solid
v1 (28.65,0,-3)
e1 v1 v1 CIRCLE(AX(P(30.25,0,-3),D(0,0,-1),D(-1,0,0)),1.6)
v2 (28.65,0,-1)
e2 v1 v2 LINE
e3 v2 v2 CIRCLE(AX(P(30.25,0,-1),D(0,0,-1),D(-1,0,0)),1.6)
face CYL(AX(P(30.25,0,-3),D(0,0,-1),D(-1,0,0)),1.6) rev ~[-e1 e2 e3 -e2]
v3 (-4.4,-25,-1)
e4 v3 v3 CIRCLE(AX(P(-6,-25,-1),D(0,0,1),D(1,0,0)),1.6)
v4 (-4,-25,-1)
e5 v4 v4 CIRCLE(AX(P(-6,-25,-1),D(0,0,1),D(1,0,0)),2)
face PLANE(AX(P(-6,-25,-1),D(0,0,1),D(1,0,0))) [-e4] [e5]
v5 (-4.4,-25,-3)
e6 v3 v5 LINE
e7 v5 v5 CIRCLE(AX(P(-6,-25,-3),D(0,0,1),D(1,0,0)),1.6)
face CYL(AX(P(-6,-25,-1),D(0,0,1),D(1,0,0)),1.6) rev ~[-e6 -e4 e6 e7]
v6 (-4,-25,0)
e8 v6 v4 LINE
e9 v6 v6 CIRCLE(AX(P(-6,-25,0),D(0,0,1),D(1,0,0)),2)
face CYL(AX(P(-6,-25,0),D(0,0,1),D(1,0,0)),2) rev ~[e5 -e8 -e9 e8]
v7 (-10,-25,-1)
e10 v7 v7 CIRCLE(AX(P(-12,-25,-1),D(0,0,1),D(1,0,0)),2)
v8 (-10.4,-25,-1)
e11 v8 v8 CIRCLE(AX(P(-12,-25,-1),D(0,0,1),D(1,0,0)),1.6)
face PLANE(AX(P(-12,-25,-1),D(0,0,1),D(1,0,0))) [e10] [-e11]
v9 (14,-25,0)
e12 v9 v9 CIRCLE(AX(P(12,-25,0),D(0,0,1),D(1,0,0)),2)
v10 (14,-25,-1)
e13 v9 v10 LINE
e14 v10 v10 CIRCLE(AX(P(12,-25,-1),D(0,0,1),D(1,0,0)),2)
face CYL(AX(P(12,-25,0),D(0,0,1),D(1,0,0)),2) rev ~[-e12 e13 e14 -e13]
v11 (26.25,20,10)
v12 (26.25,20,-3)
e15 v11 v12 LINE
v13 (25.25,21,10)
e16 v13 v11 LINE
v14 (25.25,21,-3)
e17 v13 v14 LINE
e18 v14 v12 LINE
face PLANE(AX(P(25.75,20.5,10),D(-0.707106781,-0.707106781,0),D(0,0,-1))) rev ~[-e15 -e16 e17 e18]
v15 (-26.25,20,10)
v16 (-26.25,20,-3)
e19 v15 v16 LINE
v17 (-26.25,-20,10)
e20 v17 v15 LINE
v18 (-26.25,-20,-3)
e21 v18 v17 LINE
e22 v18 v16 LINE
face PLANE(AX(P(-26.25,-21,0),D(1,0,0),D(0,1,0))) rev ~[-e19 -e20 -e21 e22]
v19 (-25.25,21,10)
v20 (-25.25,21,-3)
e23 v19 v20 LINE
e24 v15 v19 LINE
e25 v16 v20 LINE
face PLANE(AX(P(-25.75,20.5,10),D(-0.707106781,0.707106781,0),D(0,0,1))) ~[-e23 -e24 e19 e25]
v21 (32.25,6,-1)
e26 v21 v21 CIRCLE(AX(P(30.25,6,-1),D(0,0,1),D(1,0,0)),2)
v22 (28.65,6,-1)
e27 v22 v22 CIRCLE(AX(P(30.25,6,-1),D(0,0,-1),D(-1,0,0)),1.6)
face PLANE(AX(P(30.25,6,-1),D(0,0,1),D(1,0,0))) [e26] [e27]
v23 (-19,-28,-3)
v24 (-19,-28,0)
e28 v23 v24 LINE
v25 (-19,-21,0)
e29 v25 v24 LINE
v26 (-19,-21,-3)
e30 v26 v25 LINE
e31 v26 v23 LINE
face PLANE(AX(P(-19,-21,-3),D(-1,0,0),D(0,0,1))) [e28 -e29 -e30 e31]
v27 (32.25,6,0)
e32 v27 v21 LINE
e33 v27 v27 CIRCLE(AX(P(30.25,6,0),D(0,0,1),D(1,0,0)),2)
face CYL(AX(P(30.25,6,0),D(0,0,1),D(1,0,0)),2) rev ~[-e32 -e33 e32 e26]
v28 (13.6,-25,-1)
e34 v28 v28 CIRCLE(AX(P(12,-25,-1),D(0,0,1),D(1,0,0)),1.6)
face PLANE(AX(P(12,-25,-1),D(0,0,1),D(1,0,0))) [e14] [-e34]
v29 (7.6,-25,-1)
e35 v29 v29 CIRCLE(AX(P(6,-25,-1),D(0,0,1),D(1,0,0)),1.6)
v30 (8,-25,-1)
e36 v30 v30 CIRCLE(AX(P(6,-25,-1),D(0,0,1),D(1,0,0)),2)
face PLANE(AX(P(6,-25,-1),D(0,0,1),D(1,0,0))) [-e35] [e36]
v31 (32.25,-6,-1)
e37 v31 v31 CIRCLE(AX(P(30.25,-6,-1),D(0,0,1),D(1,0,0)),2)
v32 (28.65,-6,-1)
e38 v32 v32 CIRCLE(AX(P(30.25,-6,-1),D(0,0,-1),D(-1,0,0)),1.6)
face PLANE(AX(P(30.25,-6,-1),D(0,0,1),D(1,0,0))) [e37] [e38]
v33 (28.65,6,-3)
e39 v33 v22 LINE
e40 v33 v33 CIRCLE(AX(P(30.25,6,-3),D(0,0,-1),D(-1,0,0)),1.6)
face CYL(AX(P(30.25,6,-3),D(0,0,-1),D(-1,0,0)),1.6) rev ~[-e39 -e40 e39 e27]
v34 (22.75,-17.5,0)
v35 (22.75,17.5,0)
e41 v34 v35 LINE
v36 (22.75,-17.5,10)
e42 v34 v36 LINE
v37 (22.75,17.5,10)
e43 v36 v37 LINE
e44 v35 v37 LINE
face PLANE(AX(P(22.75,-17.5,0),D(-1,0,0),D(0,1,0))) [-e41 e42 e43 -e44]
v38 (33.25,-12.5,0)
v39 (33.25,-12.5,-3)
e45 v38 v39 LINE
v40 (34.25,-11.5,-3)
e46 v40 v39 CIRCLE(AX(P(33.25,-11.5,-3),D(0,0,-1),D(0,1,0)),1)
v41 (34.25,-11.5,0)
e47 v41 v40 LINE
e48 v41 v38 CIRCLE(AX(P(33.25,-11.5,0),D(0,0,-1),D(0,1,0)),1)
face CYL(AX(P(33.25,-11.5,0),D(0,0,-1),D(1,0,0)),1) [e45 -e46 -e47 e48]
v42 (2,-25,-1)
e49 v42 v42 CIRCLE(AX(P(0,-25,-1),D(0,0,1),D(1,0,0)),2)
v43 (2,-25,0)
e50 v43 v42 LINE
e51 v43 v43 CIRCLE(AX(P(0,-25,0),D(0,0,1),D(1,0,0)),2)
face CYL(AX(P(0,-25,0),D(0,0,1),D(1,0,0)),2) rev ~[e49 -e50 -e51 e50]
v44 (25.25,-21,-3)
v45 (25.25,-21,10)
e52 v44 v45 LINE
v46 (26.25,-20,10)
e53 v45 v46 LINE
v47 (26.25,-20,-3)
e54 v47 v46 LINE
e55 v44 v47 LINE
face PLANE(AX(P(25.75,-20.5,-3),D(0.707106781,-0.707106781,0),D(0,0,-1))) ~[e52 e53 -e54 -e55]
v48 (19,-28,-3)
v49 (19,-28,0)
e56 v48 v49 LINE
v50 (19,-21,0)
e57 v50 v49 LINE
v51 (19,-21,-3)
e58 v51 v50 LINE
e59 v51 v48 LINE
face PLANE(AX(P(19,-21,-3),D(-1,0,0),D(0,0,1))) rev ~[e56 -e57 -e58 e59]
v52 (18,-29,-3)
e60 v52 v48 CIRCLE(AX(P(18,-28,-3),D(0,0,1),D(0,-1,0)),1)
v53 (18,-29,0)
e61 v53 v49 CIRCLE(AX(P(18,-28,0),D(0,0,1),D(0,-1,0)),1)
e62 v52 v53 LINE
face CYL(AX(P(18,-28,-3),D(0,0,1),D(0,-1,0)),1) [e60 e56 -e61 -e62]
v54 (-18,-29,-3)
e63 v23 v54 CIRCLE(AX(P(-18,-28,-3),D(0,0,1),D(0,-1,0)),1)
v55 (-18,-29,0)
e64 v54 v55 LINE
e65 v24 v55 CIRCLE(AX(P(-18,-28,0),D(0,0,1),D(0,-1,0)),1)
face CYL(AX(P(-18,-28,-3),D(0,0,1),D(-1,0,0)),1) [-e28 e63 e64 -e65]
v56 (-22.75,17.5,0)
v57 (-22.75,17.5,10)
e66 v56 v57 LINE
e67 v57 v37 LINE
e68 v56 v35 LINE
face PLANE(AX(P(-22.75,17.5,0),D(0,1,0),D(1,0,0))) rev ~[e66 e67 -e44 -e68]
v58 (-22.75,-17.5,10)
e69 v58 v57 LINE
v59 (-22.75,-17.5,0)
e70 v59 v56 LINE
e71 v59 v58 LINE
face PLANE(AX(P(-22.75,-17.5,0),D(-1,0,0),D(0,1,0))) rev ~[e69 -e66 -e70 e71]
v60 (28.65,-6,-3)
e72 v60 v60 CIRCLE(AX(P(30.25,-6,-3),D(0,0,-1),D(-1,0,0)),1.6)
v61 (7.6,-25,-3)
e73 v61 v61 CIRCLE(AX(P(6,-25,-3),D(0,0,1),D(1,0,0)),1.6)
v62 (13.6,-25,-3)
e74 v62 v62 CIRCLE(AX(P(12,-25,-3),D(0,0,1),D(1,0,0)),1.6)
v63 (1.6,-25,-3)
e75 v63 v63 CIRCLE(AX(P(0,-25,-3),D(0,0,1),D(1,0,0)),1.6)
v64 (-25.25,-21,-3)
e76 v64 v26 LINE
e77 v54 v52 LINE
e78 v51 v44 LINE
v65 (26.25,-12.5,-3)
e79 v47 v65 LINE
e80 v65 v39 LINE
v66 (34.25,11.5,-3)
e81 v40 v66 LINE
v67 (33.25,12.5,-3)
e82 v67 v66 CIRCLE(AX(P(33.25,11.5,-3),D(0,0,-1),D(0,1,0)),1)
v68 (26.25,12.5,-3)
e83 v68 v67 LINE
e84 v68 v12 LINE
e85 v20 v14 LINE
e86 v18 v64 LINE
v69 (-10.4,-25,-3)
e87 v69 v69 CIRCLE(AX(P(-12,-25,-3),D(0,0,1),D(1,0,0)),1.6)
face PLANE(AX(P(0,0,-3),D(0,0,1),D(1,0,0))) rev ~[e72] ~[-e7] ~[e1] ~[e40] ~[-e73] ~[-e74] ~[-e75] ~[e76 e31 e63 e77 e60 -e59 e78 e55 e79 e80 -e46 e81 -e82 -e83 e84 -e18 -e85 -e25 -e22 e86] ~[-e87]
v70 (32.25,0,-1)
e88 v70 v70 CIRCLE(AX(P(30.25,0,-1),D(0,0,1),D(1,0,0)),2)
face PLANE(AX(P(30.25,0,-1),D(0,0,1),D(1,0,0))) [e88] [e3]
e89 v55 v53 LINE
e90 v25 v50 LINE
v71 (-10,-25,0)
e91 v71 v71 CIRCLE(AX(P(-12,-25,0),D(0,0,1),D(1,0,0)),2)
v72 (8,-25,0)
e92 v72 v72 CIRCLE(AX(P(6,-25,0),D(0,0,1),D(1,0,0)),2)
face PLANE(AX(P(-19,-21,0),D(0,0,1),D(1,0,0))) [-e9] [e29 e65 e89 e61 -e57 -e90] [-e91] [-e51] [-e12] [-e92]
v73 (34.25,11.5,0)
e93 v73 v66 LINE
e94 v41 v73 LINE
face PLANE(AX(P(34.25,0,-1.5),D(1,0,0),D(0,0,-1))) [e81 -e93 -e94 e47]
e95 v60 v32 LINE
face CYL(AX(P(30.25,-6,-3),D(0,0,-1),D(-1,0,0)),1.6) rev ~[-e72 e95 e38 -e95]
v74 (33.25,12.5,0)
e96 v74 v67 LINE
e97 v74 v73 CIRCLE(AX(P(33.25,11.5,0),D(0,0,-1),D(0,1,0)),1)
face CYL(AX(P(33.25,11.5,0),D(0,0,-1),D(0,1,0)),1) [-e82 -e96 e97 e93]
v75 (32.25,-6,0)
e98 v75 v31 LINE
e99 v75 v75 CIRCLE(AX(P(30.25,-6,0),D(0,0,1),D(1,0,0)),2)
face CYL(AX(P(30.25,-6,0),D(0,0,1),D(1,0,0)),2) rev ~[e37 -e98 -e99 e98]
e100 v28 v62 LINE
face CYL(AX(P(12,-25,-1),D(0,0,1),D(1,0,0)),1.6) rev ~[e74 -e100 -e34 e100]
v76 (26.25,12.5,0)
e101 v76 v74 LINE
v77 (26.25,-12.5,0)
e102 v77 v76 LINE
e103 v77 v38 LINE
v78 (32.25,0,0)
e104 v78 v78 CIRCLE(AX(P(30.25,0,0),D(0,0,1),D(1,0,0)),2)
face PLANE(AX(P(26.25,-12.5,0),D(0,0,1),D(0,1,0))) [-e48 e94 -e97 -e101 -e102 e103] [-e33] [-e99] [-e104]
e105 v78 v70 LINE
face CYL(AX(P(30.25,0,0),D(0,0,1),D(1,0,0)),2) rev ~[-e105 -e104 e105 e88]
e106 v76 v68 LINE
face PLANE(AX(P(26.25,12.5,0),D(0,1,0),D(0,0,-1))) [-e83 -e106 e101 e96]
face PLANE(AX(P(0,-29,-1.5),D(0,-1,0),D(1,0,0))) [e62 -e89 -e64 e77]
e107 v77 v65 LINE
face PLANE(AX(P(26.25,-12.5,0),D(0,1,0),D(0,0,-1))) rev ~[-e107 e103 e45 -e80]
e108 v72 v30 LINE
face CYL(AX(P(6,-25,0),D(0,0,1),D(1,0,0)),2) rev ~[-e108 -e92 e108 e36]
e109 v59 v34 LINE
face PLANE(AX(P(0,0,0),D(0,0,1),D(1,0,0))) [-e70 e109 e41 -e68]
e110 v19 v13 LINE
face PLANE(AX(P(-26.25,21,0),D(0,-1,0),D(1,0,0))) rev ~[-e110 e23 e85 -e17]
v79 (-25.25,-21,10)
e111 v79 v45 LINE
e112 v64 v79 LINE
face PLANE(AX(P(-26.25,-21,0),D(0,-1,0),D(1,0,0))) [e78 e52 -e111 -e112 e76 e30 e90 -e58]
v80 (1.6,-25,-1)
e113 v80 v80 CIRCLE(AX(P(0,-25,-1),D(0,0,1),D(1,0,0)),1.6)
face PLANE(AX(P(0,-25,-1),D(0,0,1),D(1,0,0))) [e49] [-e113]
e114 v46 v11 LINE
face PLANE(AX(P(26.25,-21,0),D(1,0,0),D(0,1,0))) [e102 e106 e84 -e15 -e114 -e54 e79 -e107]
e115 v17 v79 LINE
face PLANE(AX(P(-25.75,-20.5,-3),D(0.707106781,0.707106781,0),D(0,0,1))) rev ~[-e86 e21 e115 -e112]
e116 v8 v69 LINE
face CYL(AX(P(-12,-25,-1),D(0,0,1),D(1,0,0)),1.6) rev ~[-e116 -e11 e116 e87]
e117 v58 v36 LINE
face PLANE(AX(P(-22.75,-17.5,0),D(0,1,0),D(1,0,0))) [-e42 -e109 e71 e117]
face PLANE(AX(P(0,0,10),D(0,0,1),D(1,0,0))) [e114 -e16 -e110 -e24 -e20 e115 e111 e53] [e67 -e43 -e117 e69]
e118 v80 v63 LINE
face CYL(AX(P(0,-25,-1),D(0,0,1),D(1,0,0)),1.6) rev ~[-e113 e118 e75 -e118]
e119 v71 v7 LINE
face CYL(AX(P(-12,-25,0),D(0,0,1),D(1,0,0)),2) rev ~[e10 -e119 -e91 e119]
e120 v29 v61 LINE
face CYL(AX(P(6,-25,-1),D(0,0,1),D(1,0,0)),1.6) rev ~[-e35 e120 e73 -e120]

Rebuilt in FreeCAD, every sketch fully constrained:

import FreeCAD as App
import Part
import Sketcher
from FreeCAD import Vector


def edges_at(feature, points):
    """Names of the edges that pass closest to the given points."""
    edges = feature.Shape.Edges
    near = lambda p: min(range(len(edges)), key=lambda i: edges[i].distToShape(Part.Vertex(*p))[0])
    return sorted({f"Edge{near(p) + 1}" for p in points})

doc = App.newDocument("Part")
body = doc.addObject("PartDesign::Body", "Body")

sketch1 = doc.addObject("Sketcher::SketchObject", "Sketch")
body.addObject(sketch1)
sketch1.AttachmentSupport = (doc.XY_Plane, [""])
sketch1.MapMode = "FlatFace"
sketch1.addGeometry([
    Part.LineSegment(Vector(-26, 21, 0), Vector(-26, -21, 0)),
    Part.LineSegment(Vector(-26, -21, 0), Vector(26, -21, 0)),
    Part.LineSegment(Vector(26, -21, 0), Vector(26, 21, 0)),
    Part.LineSegment(Vector(26, 21, 0), Vector(-26, 21, 0)),
    Part.LineSegment(Vector(23, -18, 0), Vector(-23, -18, 0)),
    Part.LineSegment(Vector(-23, -18, 0), Vector(-23, 18, 0)),
    Part.LineSegment(Vector(-23, 18, 0), Vector(23, 18, 0)),
    Part.LineSegment(Vector(23, 18, 0), Vector(23, -18, 0)),
], False)
sketch1.addConstraint([
    Sketcher.Constraint("Coincident", 0, 2, 1, 1),
    Sketcher.Constraint("Coincident", 1, 2, 2, 1),
    Sketcher.Constraint("Coincident", 2, 2, 3, 1),
    Sketcher.Constraint("Coincident", 3, 2, 0, 1),
    Sketcher.Constraint("Coincident", 4, 2, 5, 1),
    Sketcher.Constraint("Coincident", 5, 2, 6, 1),
    Sketcher.Constraint("Coincident", 6, 2, 7, 1),
    Sketcher.Constraint("Coincident", 7, 2, 4, 1),
    Sketcher.Constraint("Vertical", 0),
    Sketcher.Constraint("Horizontal", 1),
    Sketcher.Constraint("Vertical", 2),
    Sketcher.Constraint("Horizontal", 3),
    Sketcher.Constraint("Horizontal", 4),
    Sketcher.Constraint("Vertical", 5),
    Sketcher.Constraint("Horizontal", 6),
    Sketcher.Constraint("Vertical", 7),
    Sketcher.Constraint("Symmetric", 0, 2, 2, 2, -1, 1),
    Sketcher.Constraint("Symmetric", 4, 2, 6, 2, -1, 1),
    Sketcher.Constraint("DistanceY", 0, 2, 0, 1, 42.0),
    Sketcher.Constraint("DistanceY", 5, 1, 5, 2, 35.0),
    Sketcher.Constraint("DistanceX", 1, 1, 1, 2, 52.5),
    Sketcher.Constraint("DistanceX", 4, 2, 4, 1, 45.5),
])
pad1 = doc.addObject("PartDesign::Pad", "Pad")
body.addObject(pad1)
pad1.Profile = sketch1
pad1.Length = 10

sketch2 = doc.addObject("Sketcher::SketchObject", "Sketch001")
body.addObject(sketch2)
sketch2.AttachmentSupport = (doc.XY_Plane, [""])
sketch2.MapMode = "FlatFace"
sketch2.addGeometry([
    Part.LineSegment(Vector(-26, 21, 0), Vector(-26, -21, 0)),
    Part.LineSegment(Vector(-26, -21, 0), Vector(26, -21, 0)),
    Part.LineSegment(Vector(26, -21, 0), Vector(26, 21, 0)),
    Part.LineSegment(Vector(26, 21, 0), Vector(-26, 21, 0)),
], False)
sketch2.addConstraint([
    Sketcher.Constraint("Coincident", 0, 2, 1, 1),
    Sketcher.Constraint("Coincident", 1, 2, 2, 1),
    Sketcher.Constraint("Coincident", 2, 2, 3, 1),
    Sketcher.Constraint("Coincident", 3, 2, 0, 1),
    Sketcher.Constraint("Vertical", 0),
    Sketcher.Constraint("Horizontal", 1),
    Sketcher.Constraint("Vertical", 2),
    Sketcher.Constraint("Horizontal", 3),
    Sketcher.Constraint("Symmetric", 0, 2, 2, 2, -1, 1),
    Sketcher.Constraint("DistanceY", 0, 2, 0, 1, 42.0),
    Sketcher.Constraint("DistanceX", 1, 1, 1, 2, 52.5),
])
pad2 = doc.addObject("PartDesign::Pad", "Pad001")
body.addObject(pad2)
pad2.Profile = sketch2
pad2.Length = 3
pad2.Reversed = True

sketch3 = doc.addObject("Sketcher::SketchObject", "Sketch002")
body.addObject(sketch3)
sketch3.AttachmentSupport = (doc.XZ_Plane, [""])
sketch3.MapMode = "FlatFace"
sketch3.AttachmentOffset = App.Placement(Vector(0, 0, 21), App.Rotation())
sketch3.addGeometry([
    Part.LineSegment(Vector(-19, 0, 0), Vector(-19, -3, 0)),
    Part.LineSegment(Vector(-19, -3, 0), Vector(19, -3, 0)),
    Part.LineSegment(Vector(19, -3, 0), Vector(19, 0, 0)),
    Part.LineSegment(Vector(19, 0, 0), Vector(-19, 0, 0)),
], False)
sketch3.addConstraint([
    Sketcher.Constraint("Coincident", 0, 2, 1, 1),
    Sketcher.Constraint("Coincident", 1, 2, 2, 1),
    Sketcher.Constraint("Coincident", 2, 2, 3, 1),
    Sketcher.Constraint("Coincident", 3, 2, 0, 1),
    Sketcher.Constraint("Vertical", 0),
    Sketcher.Constraint("Horizontal", 1),
    Sketcher.Constraint("Vertical", 2),
    Sketcher.Constraint("Horizontal", 3),
    Sketcher.Constraint("Symmetric", 2, 2, 3, 2, -1, 1),
    Sketcher.Constraint("DistanceX", 1, 1, 1, 2, 38.0),
    Sketcher.Constraint("DistanceY", 0, 2, 0, 1, 3.0),
])
pad3 = doc.addObject("PartDesign::Pad", "Pad002")
body.addObject(pad3)
pad3.Profile = sketch3
pad3.Length = 8

sketch4 = doc.addObject("Sketcher::SketchObject", "Sketch003")
body.addObject(sketch4)
sketch4.AttachmentSupport = (doc.XY_Plane, [""])
sketch4.MapMode = "FlatFace"
sketch4.addGeometry([
    Part.Circle(Vector(-12, -25, 0), Vector(0, 0, 1), 2),
    Part.Circle(Vector(-6, -25, 0), Vector(0, 0, 1), 2),
    Part.Circle(Vector(0, -25, 0), Vector(0, 0, 1), 2),
    Part.Circle(Vector(6, -25, 0), Vector(0, 0, 1), 2),
    Part.Circle(Vector(12, -25, 0), Vector(0, 0, 1), 2),
], False)
sketch4.addConstraint([
    Sketcher.Constraint("Equal", 0, 1),
    Sketcher.Constraint("Equal", 1, 2),
    Sketcher.Constraint("Equal", 2, 3),
    Sketcher.Constraint("Equal", 3, 4),
    Sketcher.Constraint("Symmetric", 1, 3, 3, 3, -2),
    Sketcher.Constraint("Symmetric", 0, 3, 4, 3, -2),
    Sketcher.Constraint("PointOnObject", 2, 3, -2),
    Sketcher.Constraint("Horizontal", 0, 3, 1, 3),
    Sketcher.Constraint("Horizontal", 1, 3, 2, 3),
    Sketcher.Constraint("Diameter", 0, 4.0),
    Sketcher.Constraint("DistanceX", 0, 3, -1, 1, 12.0),
    Sketcher.Constraint("DistanceY", 0, 3, -1, 1, 25.0),
    Sketcher.Constraint("DistanceX", 1, 3, -1, 1, 6.0),
])
pocket1 = doc.addObject("PartDesign::Pocket", "Pocket")
body.addObject(pocket1)
pocket1.Profile = sketch4
pocket1.Length = 1

sketch5 = doc.addObject("Sketcher::SketchObject", "Sketch004")
body.addObject(sketch5)
sketch5.AttachmentSupport = (doc.XY_Plane, [""])
sketch5.MapMode = "FlatFace"
sketch5.AttachmentOffset = App.Placement(Vector(0, 0, -1), App.Rotation())
sketch5.addGeometry([
    Part.Circle(Vector(-12, -25, 0), Vector(0, 0, 1), 1.6),
    Part.Circle(Vector(-6, -25, 0), Vector(0, 0, 1), 1.6),
    Part.Circle(Vector(0, -25, 0), Vector(0, 0, 1), 1.6),
    Part.Circle(Vector(6, -25, 0), Vector(0, 0, 1), 1.6),
    Part.Circle(Vector(12, -25, 0), Vector(0, 0, 1), 1.6),
], False)
sketch5.addConstraint([
    Sketcher.Constraint("Equal", 0, 1),
    Sketcher.Constraint("Equal", 1, 2),
    Sketcher.Constraint("Equal", 2, 3),
    Sketcher.Constraint("Equal", 3, 4),
    Sketcher.Constraint("Symmetric", 1, 3, 3, 3, -2),
    Sketcher.Constraint("Symmetric", 0, 3, 4, 3, -2),
    Sketcher.Constraint("PointOnObject", 2, 3, -2),
    Sketcher.Constraint("Horizontal", 0, 3, 1, 3),
    Sketcher.Constraint("Horizontal", 1, 3, 2, 3),
    Sketcher.Constraint("Diameter", 0, 3.2),
    Sketcher.Constraint("DistanceX", 0, 3, -1, 1, 12.0),
    Sketcher.Constraint("DistanceY", 0, 3, -1, 1, 25.0),
    Sketcher.Constraint("DistanceX", 1, 3, -1, 1, 6.0),
])
pocket2 = doc.addObject("PartDesign::Pocket", "Pocket001")
body.addObject(pocket2)
pocket2.Profile = sketch5
pocket2.Length = 4

sketch6 = doc.addObject("Sketcher::SketchObject", "Sketch005")
body.addObject(sketch6)
sketch6.AttachmentSupport = (doc.YZ_Plane, [""])
sketch6.MapMode = "FlatFace"
sketch6.AttachmentOffset = App.Placement(Vector(0, 0, 26.25), App.Rotation())
sketch6.addGeometry([
    Part.LineSegment(Vector(12.5, 0, 0), Vector(-12.5, 0, 0)),
    Part.LineSegment(Vector(-12.5, 0, 0), Vector(-12.5, -3, 0)),
    Part.LineSegment(Vector(-12.5, -3, 0), Vector(12.5, -3, 0)),
    Part.LineSegment(Vector(12.5, -3, 0), Vector(12.5, 0, 0)),
], False)
sketch6.addConstraint([
    Sketcher.Constraint("Coincident", 0, 2, 1, 1),
    Sketcher.Constraint("Coincident", 1, 2, 2, 1),
    Sketcher.Constraint("Coincident", 2, 2, 3, 1),
    Sketcher.Constraint("Coincident", 3, 2, 0, 1),
    Sketcher.Constraint("Horizontal", 0),
    Sketcher.Constraint("Vertical", 1),
    Sketcher.Constraint("Horizontal", 2),
    Sketcher.Constraint("Vertical", 3),
    Sketcher.Constraint("Symmetric", 0, 2, 3, 2, -1, 1),
    Sketcher.Constraint("DistanceX", 0, 2, 0, 1, 25.0),
    Sketcher.Constraint("DistanceY", 1, 2, 1, 1, 3.0),
])
pad4 = doc.addObject("PartDesign::Pad", "Pad003")
body.addObject(pad4)
pad4.Profile = sketch6
pad4.Length = 8

sketch7 = doc.addObject("Sketcher::SketchObject", "Sketch006")
body.addObject(sketch7)
sketch7.AttachmentSupport = (doc.XY_Plane, [""])
sketch7.MapMode = "FlatFace"
sketch7.addGeometry([
    Part.Circle(Vector(30.2, 6, 0), Vector(0, 0, 1), 2),
    Part.Circle(Vector(30.2, 0, 0), Vector(0, 0, 1), 2),
    Part.Circle(Vector(30.2, -6, 0), Vector(0, 0, 1), 2),
], False)
sketch7.addConstraint([
    Sketcher.Constraint("Equal", 0, 1),
    Sketcher.Constraint("Equal", 1, 2),
    Sketcher.Constraint("Symmetric", 0, 3, 2, 3, -1),
    Sketcher.Constraint("PointOnObject", 1, 3, -1),
    Sketcher.Constraint("Vertical", 0, 3, 1, 3),
    Sketcher.Constraint("Diameter", 0, 4.0),
    Sketcher.Constraint("DistanceY", -1, 1, 0, 3, 6.0),
    Sketcher.Constraint("DistanceX", -1, 1, 0, 3, 30.25),
])
pocket3 = doc.addObject("PartDesign::Pocket", "Pocket002")
body.addObject(pocket3)
pocket3.Profile = sketch7
pocket3.Length = 1

sketch8 = doc.addObject("Sketcher::SketchObject", "Sketch007")
body.addObject(sketch8)
sketch8.AttachmentSupport = (doc.XY_Plane, [""])
sketch8.MapMode = "FlatFace"
sketch8.AttachmentOffset = App.Placement(Vector(0, 0, -3), App.Rotation())
sketch8.addGeometry([
    Part.Circle(Vector(30.2, 6, 0), Vector(0, 0, 1), 1.6),
    Part.Circle(Vector(30.2, 0, 0), Vector(0, 0, 1), 1.6),
    Part.Circle(Vector(30.2, -6, 0), Vector(0, 0, 1), 1.6),
], False)
sketch8.addConstraint([
    Sketcher.Constraint("Equal", 0, 1),
    Sketcher.Constraint("Equal", 1, 2),
    Sketcher.Constraint("Symmetric", 0, 3, 2, 3, -1),
    Sketcher.Constraint("PointOnObject", 1, 3, -1),
    Sketcher.Constraint("Vertical", 0, 3, 1, 3),
    Sketcher.Constraint("Diameter", 0, 3.2),
    Sketcher.Constraint("DistanceY", -1, 1, 0, 3, 6.0),
    Sketcher.Constraint("DistanceX", -1, 1, 0, 3, 30.25),
])
pocket4 = doc.addObject("PartDesign::Pocket", "Pocket003")
body.addObject(pocket4)
pocket4.Profile = sketch8
pocket4.Length = 3
pocket4.Reversed = True
doc.recompute()

chamfer = doc.addObject("PartDesign::Chamfer", "Chamfer")
body.addObject(chamfer)
chamfer.Base = (pocket4, edges_at(pocket4, [
    (26.25, -21, 3.5),
    (-26.25, -21, 3.5),
    (-26.25, 21, 3.5),
    (26.25, 21, 3.5),
]))
chamfer.Size = 1
doc.recompute()

fillet = doc.addObject("PartDesign::Fillet", "Fillet")
body.addObject(fillet)
fillet.Base = (chamfer, edges_at(chamfer, [
    (34.25, 12.5, -1.5),
    (34.25, -12.5, -1.5),
    (19, -29, -1.5),
    (-19, -29, -1.5),
]))
fillet.Radius = 1

doc.recompute()
